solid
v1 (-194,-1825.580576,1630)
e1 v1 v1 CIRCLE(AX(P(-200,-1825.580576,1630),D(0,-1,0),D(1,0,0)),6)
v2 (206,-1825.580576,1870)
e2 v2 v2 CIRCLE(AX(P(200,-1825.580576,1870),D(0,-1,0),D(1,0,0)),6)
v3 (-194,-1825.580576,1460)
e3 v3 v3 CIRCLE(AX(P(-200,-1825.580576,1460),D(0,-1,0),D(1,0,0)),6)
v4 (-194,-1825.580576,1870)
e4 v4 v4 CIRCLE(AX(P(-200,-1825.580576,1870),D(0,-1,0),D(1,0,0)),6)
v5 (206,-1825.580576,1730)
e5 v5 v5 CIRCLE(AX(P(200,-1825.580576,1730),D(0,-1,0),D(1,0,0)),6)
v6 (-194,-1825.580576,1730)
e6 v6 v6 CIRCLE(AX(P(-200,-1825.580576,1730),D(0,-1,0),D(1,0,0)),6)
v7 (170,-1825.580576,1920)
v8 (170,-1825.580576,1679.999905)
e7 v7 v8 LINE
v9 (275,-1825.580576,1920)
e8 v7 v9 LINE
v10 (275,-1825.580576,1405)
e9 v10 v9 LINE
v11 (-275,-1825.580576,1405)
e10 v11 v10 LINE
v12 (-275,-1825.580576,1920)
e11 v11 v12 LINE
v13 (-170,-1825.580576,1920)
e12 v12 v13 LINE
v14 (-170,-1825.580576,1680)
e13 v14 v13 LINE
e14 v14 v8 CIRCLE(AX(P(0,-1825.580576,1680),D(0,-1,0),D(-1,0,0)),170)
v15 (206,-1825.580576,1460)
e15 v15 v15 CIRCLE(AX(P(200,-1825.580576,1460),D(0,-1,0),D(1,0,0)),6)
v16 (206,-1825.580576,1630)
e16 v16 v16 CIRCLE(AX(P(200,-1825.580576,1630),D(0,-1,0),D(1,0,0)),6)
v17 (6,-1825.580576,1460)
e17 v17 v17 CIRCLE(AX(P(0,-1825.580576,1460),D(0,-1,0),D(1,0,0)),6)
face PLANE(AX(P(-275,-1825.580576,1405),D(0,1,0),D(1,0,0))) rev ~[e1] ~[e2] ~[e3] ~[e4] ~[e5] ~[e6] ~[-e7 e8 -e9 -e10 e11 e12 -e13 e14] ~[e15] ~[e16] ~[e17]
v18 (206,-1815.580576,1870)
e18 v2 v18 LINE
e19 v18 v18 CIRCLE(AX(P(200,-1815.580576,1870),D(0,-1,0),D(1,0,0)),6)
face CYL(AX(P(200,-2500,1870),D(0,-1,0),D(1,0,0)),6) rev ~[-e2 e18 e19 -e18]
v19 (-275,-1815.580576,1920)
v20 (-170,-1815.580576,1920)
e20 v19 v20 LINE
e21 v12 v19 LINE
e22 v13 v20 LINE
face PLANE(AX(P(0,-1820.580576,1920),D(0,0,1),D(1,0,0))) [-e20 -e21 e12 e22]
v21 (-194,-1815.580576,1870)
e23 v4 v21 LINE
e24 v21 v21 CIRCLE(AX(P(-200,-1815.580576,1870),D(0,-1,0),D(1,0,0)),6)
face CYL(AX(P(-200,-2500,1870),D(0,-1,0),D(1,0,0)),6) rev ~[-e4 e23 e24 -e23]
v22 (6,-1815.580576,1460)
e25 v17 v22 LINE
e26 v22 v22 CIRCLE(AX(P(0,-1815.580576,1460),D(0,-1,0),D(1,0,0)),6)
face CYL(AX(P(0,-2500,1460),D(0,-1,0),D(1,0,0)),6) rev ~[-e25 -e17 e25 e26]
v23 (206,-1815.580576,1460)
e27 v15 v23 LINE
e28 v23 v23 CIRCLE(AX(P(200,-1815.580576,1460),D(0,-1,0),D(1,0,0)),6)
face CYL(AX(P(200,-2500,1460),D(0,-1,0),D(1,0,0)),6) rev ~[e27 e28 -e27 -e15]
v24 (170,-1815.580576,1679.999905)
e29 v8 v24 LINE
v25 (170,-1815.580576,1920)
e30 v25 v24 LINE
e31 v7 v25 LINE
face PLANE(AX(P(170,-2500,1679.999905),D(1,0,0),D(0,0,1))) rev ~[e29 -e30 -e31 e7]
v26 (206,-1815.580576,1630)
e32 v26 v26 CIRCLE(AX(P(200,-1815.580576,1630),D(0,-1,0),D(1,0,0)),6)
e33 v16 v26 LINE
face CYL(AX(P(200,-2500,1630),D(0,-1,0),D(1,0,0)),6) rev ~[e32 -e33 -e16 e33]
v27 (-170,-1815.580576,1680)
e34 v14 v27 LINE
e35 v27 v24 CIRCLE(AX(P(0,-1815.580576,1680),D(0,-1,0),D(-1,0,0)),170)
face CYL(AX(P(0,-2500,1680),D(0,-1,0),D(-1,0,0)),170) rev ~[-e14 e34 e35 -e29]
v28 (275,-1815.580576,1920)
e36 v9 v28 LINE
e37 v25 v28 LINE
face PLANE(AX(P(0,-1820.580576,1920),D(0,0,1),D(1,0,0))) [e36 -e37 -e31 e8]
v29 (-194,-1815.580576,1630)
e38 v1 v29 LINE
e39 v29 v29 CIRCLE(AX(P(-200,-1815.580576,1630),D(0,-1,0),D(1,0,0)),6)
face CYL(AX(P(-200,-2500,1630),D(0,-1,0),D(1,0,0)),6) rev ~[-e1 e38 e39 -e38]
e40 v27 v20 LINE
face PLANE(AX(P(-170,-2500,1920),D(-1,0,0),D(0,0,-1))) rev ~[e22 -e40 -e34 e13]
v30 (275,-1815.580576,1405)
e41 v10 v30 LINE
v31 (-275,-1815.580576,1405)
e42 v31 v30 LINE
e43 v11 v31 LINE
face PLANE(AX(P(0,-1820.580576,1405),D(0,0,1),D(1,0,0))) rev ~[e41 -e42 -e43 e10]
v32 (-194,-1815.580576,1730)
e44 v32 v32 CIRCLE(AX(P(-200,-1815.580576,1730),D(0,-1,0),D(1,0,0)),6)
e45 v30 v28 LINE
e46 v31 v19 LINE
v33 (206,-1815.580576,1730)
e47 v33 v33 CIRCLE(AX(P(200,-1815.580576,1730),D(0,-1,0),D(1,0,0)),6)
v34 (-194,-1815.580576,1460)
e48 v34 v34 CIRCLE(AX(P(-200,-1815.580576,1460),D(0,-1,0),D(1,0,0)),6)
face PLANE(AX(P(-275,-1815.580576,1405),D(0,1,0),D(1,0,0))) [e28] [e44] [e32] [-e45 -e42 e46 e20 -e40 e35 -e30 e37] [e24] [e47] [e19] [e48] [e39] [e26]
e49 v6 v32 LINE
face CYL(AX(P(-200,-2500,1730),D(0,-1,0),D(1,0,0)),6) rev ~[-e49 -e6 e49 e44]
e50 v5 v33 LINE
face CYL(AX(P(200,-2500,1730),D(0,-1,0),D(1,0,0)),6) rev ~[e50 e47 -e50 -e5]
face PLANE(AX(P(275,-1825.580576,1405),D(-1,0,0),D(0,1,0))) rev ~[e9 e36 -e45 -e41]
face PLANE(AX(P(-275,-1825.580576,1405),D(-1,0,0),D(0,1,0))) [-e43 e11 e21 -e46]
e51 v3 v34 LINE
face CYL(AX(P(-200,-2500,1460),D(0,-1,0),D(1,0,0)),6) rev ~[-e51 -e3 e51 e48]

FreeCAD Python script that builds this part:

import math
import FreeCAD as App
import Part
import Sketcher
from FreeCAD import Vector
Q = App.Units.Quantity

doc = App.newDocument("Part")
params = doc.addObject("Spreadsheet::Sheet", "Params")
for row, (alias, value) in enumerate([
    ("sketch1_diameter", "12 mm"),
    ("pad1_length", "1000 mm"),
    ("sketch2_radius", "170 mm"),
    ("sketch2_height", "240 mm"),
    ("pad2_length", "1000 mm"),
    ("sketch3_width", "550 mm"),
    ("sketch3_height", "10 mm"),
    ("pad3_length", "515 mm"),
], start=1):
    params.set(f"A{row}", alias)
    params.set(f"B{row}", "=" + value)
    params.setAlias(f"B{row}", alias)

body = doc.addObject("PartDesign::Body", "Body")
body.AllowCompound = True

# Sketch on XZ plane
sketch1 = body.newObject("Sketcher::SketchObject", "Sketch")
sketch1.AttachmentSupport = (doc.getObject("XZ_Plane"), [""])
sketch1.MapMode = "FlatFace"
sketch1.AttachmentOffset = App.Placement(Vector(0, 0, 2500), App.Rotation())
sketch1.addGeometry([
    Part.Circle(Vector(-200, 1730, 0), Vector(0, 0, 1), 6),  # 0
    Part.Circle(Vector(-200, 1870, 0), Vector(0, 0, 1), 6),  # 1
    Part.Circle(Vector(200, 1870, 0), Vector(0, 0, 1), 6),  # 2
    Part.Circle(Vector(200, 1730, 0), Vector(0, 0, 1), 6),  # 3
    Part.Circle(Vector(-200, 1630, 0), Vector(0, 0, 1), 6),  # 4
    Part.Circle(Vector(-200, 1460, 0), Vector(0, 0, 1), 6),  # 5
    Part.Circle(Vector(200, 1630, 0), Vector(0, 0, 1), 6),  # 6
    Part.Circle(Vector(200, 1460, 0), Vector(0, 0, 1), 6),  # 7
    Part.Circle(Vector(0, 1460, 0), Vector(0, 0, 1), 6),  # 8
], False)
sketch1.addConstraint([
    Sketcher.Constraint("Equal", 0, 1),
    Sketcher.Constraint("Equal", 1, 2),
    Sketcher.Constraint("Equal", 2, 3),
    Sketcher.Constraint("Equal", 3, 4),
    Sketcher.Constraint("Equal", 4, 5),
    Sketcher.Constraint("Equal", 5, 6),
    Sketcher.Constraint("Equal", 6, 7),
    Sketcher.Constraint("Equal", 7, 8),
    Sketcher.Constraint("Symmetric", 1, 3, 2, 3, -2),
    Sketcher.Constraint("Symmetric", 0, 3, 3, 3, -2),
    Sketcher.Constraint("Symmetric", 4, 3, 6, 3, -2),
    Sketcher.Constraint("Symmetric", 5, 3, 7, 3, -2),
    Sketcher.Constraint("PointOnObject", 8, 3, -2),
    Sketcher.Constraint("Horizontal", 7, 3, 8, 3),
    Sketcher.Constraint("Vertical", 0, 3, 1, 3),
    Sketcher.Constraint("Vertical", 1, 3, 4, 3),
    Sketcher.Constraint("Vertical", 4, 3, 5, 3),
    Sketcher.Constraint("Diameter", 0, Q("12 mm")),
    Sketcher.Constraint("DistanceX", 0, 3, -1, 1, Q("200 mm")),
    Sketcher.Constraint("DistanceY", -1, 1, 0, 3, Q("1730 mm")),
    Sketcher.Constraint("DistanceY", -1, 1, 1, 3, Q("1870 mm")),
    Sketcher.Constraint("DistanceY", -1, 1, 4, 3, Q("1630 mm")),
    Sketcher.Constraint("DistanceY", -1, 1, 5, 3, Q("1460 mm")),
])
sketch1.setExpression("Constraints[17]", "Params.sketch1_diameter")
pad1 = body.newObject("PartDesign::Pad", "Pad")
pad1.Profile = sketch1
pad1.setExpression("Length", "Params.pad1_length")
pad1.Reversed = True
body2 = doc.addObject("PartDesign::Body", "Body001")

# Sketch on XZ plane
sketch2 = body2.newObject("Sketcher::SketchObject", "Sketch001")
sketch2.AttachmentSupport = (doc.getObject("XZ_Plane001"), [""])
sketch2.MapMode = "FlatFace"
sketch2.AttachmentOffset = App.Placement(Vector(0, 0, 2500), App.Rotation())
sketch2.addGeometry([
    Part.LineSegment(Vector(-170, 1920, 0), Vector(-170, 1680, 0)),
    Part.ArcOfCircle(Part.Circle(Vector(0, 1680, 0), Vector(0, 0, 1), 170), math.radians(180), math.radians(359.999968)),
    Part.LineSegment(Vector(170, 1679.999905, 0), Vector(170, 1920, 0)),
    Part.LineSegment(Vector(170, 1920, 0), Vector(-170, 1920, 0)),
], False)
sketch2.addConstraint([
    Sketcher.Constraint("Coincident", 0, 2, 1, 1),
    Sketcher.Constraint("Coincident", 1, 2, 2, 1),
    Sketcher.Constraint("Coincident", 2, 2, 3, 1),
    Sketcher.Constraint("Coincident", 3, 2, 0, 1),
    Sketcher.Constraint("Vertical", 0),
    Sketcher.Constraint("Vertical", 2),
    Sketcher.Constraint("Horizontal", 3),
    Sketcher.Constraint("PointOnObject", 1, 3, -2),
    Sketcher.Constraint("Radius", 1, Q("170 mm")),
    Sketcher.Constraint("DistanceY", 0, 2, 0, 1, Q("240 mm")),
    Sketcher.Constraint("DistanceY", -1, 1, 1, 3, Q("1680 mm")),
    Sketcher.Constraint("DistanceY", -1, 1, 0, 2, Q("1680 mm")),
    Sketcher.Constraint("DistanceY", 2, 1, 2, 2, Q("240.000095 mm")),
])
sketch2.setExpression("Constraints[8]", "Params.sketch2_radius")
sketch2.setExpression("Constraints[9]", "Params.sketch2_height")
pad2 = body2.newObject("PartDesign::Pad", "Pad001")
pad2.Profile = sketch2
pad2.setExpression("Length", "Params.pad2_length")
pad2.Reversed = True
body3 = doc.addObject("PartDesign::Body", "Body002")

# Sketch on XY plane
sketch3 = body3.newObject("Sketcher::SketchObject", "Sketch002")
sketch3.AttachmentSupport = (doc.getObject("XY_Plane002"), [""])
sketch3.MapMode = "FlatFace"
sketch3.AttachmentOffset = App.Placement(Vector(0, 0, 1405), App.Rotation())
sketch3.addGeometry([
    Part.LineSegment(Vector(-275, -1815.580576, 0), Vector(-275, -1825.580576, 0)),
    Part.LineSegment(Vector(-275, -1825.580576, 0), Vector(275, -1825.580576, 0)),
    Part.LineSegment(Vector(275, -1825.580576, 0), Vector(275, -1815.580576, 0)),
    Part.LineSegment(Vector(275, -1815.580576, 0), Vector(-275, -1815.580576, 0)),
], False)
sketch3.addConstraint([
    Sketcher.Constraint("Coincident", 0, 2, 1, 1),
    Sketcher.Constraint("Coincident", 1, 2, 2, 1),
    Sketcher.Constraint("Coincident", 2, 2, 3, 1),
    Sketcher.Constraint("Coincident", 3, 2, 0, 1),
    Sketcher.Constraint("Vertical", 0),
    Sketcher.Constraint("Horizontal", 1),
    Sketcher.Constraint("Vertical", 2),
    Sketcher.Constraint("Horizontal", 3),
    Sketcher.Constraint("DistanceX", 1, 1, 1, 2, Q("550 mm")),
    Sketcher.Constraint("DistanceY", 0, 2, 0, 1, Q("10 mm")),
    Sketcher.Constraint("DistanceX", 0, 2, -1, 1, Q("275 mm")),
    Sketcher.Constraint("DistanceY", 0, 2, -1, 1, Q("1825.580576 mm")),
])
sketch3.setExpression("Constraints[8]", "Params.sketch3_width")
sketch3.setExpression("Constraints[9]", "Params.sketch3_height")
pad3 = body3.newObject("PartDesign::Pad", "Pad002")
pad3.Profile = sketch3
pad3.setExpression("Length", "Params.pad3_length")
doc.recompute()

boolean = body3.newObject("PartDesign::Boolean", "Boolean")
boolean.Type = "Cut"
boolean.addObjects([body2])
doc.recompute()

boolean2 = body3.newObject("PartDesign::Boolean", "Boolean001")
boolean2.Type = "Cut"
boolean2.addObjects([body])

doc.recompute()
